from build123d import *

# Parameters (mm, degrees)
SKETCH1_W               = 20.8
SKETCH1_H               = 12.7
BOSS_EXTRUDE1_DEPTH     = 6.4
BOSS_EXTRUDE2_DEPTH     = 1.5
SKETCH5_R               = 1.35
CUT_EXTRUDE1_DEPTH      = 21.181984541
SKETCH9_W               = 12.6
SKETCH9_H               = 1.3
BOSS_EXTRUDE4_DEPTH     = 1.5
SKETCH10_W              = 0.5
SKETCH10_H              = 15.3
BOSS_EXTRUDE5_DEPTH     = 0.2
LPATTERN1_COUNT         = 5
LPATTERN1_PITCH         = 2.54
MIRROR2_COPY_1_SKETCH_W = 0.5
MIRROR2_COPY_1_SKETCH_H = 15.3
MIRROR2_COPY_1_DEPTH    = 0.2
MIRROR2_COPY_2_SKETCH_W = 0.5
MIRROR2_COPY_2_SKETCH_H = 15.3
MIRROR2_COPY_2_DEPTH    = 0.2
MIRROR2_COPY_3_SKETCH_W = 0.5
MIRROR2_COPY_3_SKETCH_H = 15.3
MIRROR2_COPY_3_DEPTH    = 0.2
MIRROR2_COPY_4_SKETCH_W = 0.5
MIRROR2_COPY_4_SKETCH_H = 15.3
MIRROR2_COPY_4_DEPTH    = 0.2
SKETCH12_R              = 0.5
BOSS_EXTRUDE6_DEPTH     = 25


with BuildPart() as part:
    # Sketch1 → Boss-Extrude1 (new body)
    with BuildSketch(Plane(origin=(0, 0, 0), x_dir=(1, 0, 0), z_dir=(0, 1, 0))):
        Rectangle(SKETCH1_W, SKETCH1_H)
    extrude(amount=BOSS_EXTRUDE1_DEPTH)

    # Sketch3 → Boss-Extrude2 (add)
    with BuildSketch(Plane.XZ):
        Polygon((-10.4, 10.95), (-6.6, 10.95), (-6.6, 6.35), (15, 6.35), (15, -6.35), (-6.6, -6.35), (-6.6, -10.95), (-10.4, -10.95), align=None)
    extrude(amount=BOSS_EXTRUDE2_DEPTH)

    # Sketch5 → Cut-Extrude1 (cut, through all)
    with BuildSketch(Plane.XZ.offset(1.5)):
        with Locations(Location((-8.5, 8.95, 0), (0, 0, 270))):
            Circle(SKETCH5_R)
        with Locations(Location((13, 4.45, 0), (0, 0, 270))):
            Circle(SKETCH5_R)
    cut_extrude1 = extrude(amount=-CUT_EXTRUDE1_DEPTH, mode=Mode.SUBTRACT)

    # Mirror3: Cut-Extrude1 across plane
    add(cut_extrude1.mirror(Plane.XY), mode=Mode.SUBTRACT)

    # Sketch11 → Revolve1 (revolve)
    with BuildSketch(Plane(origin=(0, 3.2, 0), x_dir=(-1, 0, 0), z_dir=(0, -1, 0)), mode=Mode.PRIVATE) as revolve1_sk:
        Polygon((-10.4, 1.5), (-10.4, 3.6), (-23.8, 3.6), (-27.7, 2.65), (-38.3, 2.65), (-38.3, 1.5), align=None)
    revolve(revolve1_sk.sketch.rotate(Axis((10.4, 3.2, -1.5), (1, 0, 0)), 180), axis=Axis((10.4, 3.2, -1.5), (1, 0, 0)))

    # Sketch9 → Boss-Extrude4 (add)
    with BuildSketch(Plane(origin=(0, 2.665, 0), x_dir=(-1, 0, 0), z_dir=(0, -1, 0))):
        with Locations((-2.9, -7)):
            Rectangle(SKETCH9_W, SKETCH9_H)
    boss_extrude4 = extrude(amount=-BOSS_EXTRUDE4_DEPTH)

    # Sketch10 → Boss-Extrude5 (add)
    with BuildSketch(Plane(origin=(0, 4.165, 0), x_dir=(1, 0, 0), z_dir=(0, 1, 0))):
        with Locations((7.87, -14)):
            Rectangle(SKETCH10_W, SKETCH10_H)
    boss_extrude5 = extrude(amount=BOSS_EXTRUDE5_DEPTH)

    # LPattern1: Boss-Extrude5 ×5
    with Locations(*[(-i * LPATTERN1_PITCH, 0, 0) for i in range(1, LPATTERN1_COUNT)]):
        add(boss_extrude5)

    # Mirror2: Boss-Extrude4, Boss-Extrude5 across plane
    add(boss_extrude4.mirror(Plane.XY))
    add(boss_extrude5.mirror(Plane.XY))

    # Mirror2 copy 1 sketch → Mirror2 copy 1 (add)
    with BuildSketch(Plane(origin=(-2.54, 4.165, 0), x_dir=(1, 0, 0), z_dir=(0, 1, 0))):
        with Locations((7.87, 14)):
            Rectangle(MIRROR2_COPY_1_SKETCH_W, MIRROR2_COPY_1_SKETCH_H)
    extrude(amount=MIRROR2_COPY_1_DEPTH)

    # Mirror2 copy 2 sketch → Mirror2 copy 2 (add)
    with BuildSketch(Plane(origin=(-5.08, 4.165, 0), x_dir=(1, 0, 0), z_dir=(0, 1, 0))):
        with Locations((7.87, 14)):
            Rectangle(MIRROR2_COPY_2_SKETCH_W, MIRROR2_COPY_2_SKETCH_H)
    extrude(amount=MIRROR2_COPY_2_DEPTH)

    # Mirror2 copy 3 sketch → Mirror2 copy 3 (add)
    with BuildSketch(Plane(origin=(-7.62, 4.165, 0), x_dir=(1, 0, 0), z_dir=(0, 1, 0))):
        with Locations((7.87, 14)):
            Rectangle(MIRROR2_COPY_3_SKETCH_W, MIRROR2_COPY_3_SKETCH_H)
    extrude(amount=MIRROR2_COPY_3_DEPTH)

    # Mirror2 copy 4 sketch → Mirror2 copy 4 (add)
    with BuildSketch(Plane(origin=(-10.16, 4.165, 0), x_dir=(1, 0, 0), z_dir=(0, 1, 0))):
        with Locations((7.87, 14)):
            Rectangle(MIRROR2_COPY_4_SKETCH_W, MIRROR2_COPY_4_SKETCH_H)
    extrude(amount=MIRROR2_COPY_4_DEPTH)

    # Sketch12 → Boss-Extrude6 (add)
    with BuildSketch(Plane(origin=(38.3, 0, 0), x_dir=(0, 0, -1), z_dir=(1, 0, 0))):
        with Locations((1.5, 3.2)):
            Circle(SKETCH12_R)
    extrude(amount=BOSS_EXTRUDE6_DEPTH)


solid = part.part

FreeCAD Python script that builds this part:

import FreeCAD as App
import Part
import Sketcher

V = App.Vector
Q = App.Units.Quantity


def add_polygon(sketch, points):
    """Adds a closed chain of lines whose ends are joined by coincident constraints."""
    first, n = sketch.GeometryCount, len(points)
    for a, b in zip(points, points[1:] + points[:1]):
        sketch.addGeometry(Part.LineSegment(App.Vector(*a, 0), App.Vector(*b, 0)), False)
    for i in range(n):
        sketch.addConstraint(Sketcher.Constraint("Coincident", first + i, 2, first + (i + 1) % n, 1))

doc = App.newDocument("Part")
body = doc.addObject("PartDesign::Body", "Body")

sketch1 = body.newObject("Sketcher::SketchObject", "Sketch")
sketch1.AttachmentSupport = (doc.getObject("XZ_Plane"), [""])
sketch1.MapMode = "FlatFace"
add_polygon(sketch1, [(-10, -6), (-10, 6), (10, 6), (10, -6)])
sketch1.addConstraint([
    Sketcher.Constraint("Vertical", 0),
    Sketcher.Constraint("Horizontal", 1),
    Sketcher.Constraint("Vertical", 2),
    Sketcher.Constraint("Horizontal", 3),
    Sketcher.Constraint("Symmetric", 0, 2, 2, 2, -1, 1),
    Sketcher.Constraint("DistanceX", 1, 1, 1, 2, Q("20.8 mm")),
    Sketcher.Constraint("DistanceY", 0, 1, 0, 2, Q("12.7 mm")),
])
pad1 = body.newObject("PartDesign::Pad", "Pad")
pad1.Profile = sketch1
pad1.Length = 6.4
pad1.Reversed = True

sketch2 = body.newObject("Sketcher::SketchObject", "Sketch001")
sketch2.AttachmentSupport = (doc.getObject("XZ_Plane"), [""])
sketch2.MapMode = "FlatFace"
add_polygon(sketch2, [(-6.6, 10.9), (-10.4, 10.9), (-10.4, -10.9), (-6.6, -10.9), (-6.6, -6.3), (15, -6.3), (15, 6.3), (-6.6, 6.3)])
sketch2.addConstraint([
    Sketcher.Constraint("Horizontal", 0),
    Sketcher.Constraint("Vertical", 1),
    Sketcher.Constraint("Horizontal", 2),
    Sketcher.Constraint("Vertical", 3),
    Sketcher.Constraint("Horizontal", 4),
    Sketcher.Constraint("Vertical", 5),
    Sketcher.Constraint("Horizontal", 6),
    Sketcher.Constraint("Vertical", 7),
    Sketcher.Constraint("Symmetric", 3, 2, 6, 2, -1),
    Sketcher.Constraint("Equal", 3, 7),
    Sketcher.Constraint("DistanceX", 0, 2, 0, 1, Q("3.8 mm")),
    Sketcher.Constraint("DistanceX", 4, 1, 4, 2, Q("21.6 mm")),
    Sketcher.Constraint("DistanceY", 1, 2, 1, 1, Q("21.9 mm")),
    Sketcher.Constraint("DistanceY", 3, 1, 3, 2, Q("4.6 mm")),
    Sketcher.Constraint("DistanceX", -1, 1, 4, 2, Q("15 mm")),
])
pad2 = body.newObject("PartDesign::Pad", "Pad001")
pad2.Profile = sketch2
pad2.Length = 1.5

sketch3 = body.newObject("Sketcher::SketchObject", "Sketch002")
sketch3.AttachmentSupport = (doc.getObject("XZ_Plane"), [""])
sketch3.MapMode = "FlatFace"
sketch3.AttachmentOffset = App.Placement(V(0, 0, 1.5), App.Rotation())
sketch3.addGeometry([
    Part.Circle(V(-8.5, 8.9, 0), V(0, 0, 1), 1.4),
    Part.Circle(V(13, 4.5, 0), V(0, 0, 1), 1.4),
], False)
sketch3.addConstraint([
    Sketcher.Constraint("Equal", 0, 1),
    Sketcher.Constraint("Diameter", 0, Q("2.7 mm")),
    Sketcher.Constraint("DistanceX", -1, 1, 1, 3, Q("13 mm")),
    Sketcher.Constraint("DistanceX", 0, 3, -1, 1, Q("8.5 mm")),
    Sketcher.Constraint("DistanceY", 1, 3, 0, 3, Q("4.5 mm")),
    Sketcher.Constraint("DistanceY", -1, 1, 0, 3, Q("8.95 mm")),
])
pocket1 = body.newObject("PartDesign::Pocket", "Pocket")
pocket1.Profile = sketch3
pocket1.Type = "ThroughAll"
doc.recompute()

mirrored = body.newObject("PartDesign::Mirrored", "Mirrored")
mirrored.Originals = [pocket1]
mirrored.MirrorPlane = (doc.getObject("XY_Plane"), [""])
body.Tip = mirrored

sketch4 = body.newObject("Sketcher::SketchObject", "Sketch003")
sketch4.AttachmentSupport = (doc.getObject("XZ_Plane"), [""])
sketch4.MapMode = "FlatFace"
sketch4.AttachmentOffset = App.Placement(V(0, 0, -3.2), App.Rotation())
add_polygon(sketch4, [(10.4, -1.5), (10.4, -3.6), (23.8, -3.6), (27.7, -2.6), (38.3, -2.6), (38.3, -1.5)])
sketch4.addGeometry(Part.LineSegment(V(10.4, -1.5, 0), V(38.3, -1.5, 0)), True)
sketch4.addConstraint([
    Sketcher.Constraint("Vertical", 0),
    Sketcher.Constraint("Horizontal", 1),
    Sketcher.Constraint("Horizontal", 3),
    Sketcher.Constraint("Vertical", 4),
    Sketcher.Constraint("Horizontal", 5),
    Sketcher.Constraint("Horizontal", 6),
    Sketcher.Constraint("Coincident", 6, 1, 5, 2),
    Sketcher.Constraint("Vertical", 3, 2, 6, 2),
    Sketcher.Constraint("DistanceX", 1, 1, 1, 2, Q("13.4 mm")),
    Sketcher.Constraint("DistanceX", 3, 1, 3, 2, Q("10.6 mm")),
    Sketcher.Constraint("DistanceX", 5, 2, 5, 1, Q("27.9 mm")),
    Sketcher.Constraint("DistanceY", 0, 2, 0, 1, Q("2.1 mm")),
    Sketcher.Constraint("DistanceY", 4, 1, 4, 2, Q("1.15 mm")),
    Sketcher.Constraint("DistanceX", -1, 1, 0, 2, Q("10.4 mm")),
    Sketcher.Constraint("DistanceY", 0, 2, -1, 1, Q("3.6 mm")),
])
revolution = body.newObject("PartDesign::Revolution", "Revolution")
revolution.Profile = sketch4
revolution.ReferenceAxis = (sketch4, ["Axis0"])
revolution.Angle = 360

sketch5 = body.newObject("Sketcher::SketchObject", "Sketch004")
sketch5.AttachmentSupport = (doc.getObject("XZ_Plane"), [""])
sketch5.MapMode = "FlatFace"
sketch5.AttachmentOffset = App.Placement(V(0, 0, -2.665), App.Rotation())
add_polygon(sketch5, [(9.2, 6.3), (9.2, 7.7), (-3.4, 7.7), (-3.4, 6.3)])
sketch5.addConstraint([
    Sketcher.Constraint("Vertical", 0),
    Sketcher.Constraint("Horizontal", 1),
    Sketcher.Constraint("Vertical", 2),
    Sketcher.Constraint("Horizontal", 3),
    Sketcher.Constraint("DistanceX", 1, 2, 1, 1, Q("12.6 mm")),
    Sketcher.Constraint("DistanceY", 0, 1, 0, 2, Q("1.3 mm")),
    Sketcher.Constraint("DistanceX", -1, 1, 0, 2, Q("9.2 mm")),
    Sketcher.Constraint("DistanceY", -1, 1, 0, 2, Q("7.65 mm")),
])
pad3 = body.newObject("PartDesign::Pad", "Pad002")
pad3.Profile = sketch5
pad3.Length = 1.5
pad3.Reversed = True

sketch6 = body.newObject("Sketcher::SketchObject", "Sketch005")
sketch6.AttachmentSupport = (doc.getObject("XZ_Plane"), [""])
sketch6.MapMode = "FlatFace"
sketch6.AttachmentOffset = App.Placement(V(0, 0, -4.165), App.Rotation())
add_polygon(sketch6, [(7.62, 6.35), (7.62, 21.65), (8.12, 21.65), (8.12, 6.35)])
sketch6.addConstraint([
    Sketcher.Constraint("Vertical", 0),
    Sketcher.Constraint("Horizontal", 1),
    Sketcher.Constraint("Vertical", 2),
    Sketcher.Constraint("Horizontal", 3),
    Sketcher.Constraint("DistanceX", 1, 1, 1, 2, Q("0.5 mm")),
    Sketcher.Constraint("DistanceY", 0, 1, 0, 2, Q("15.3 mm")),
    Sketcher.Constraint("DistanceX", -1, 1, 0, 2, Q("7.62 mm")),
    Sketcher.Constraint("DistanceY", -1, 1, 0, 2, Q("21.65 mm")),
])
pad4 = body.newObject("PartDesign::Pad", "Pad003")
pad4.Profile = sketch6
pad4.Length = 0.2
pad4.Reversed = True
doc.recompute()

linearpattern = body.newObject("PartDesign::LinearPattern", "LinearPattern")
linearpattern.Originals = [pad4]
linearpattern.Direction = (doc.getObject("X_Axis"), [""])
linearpattern.Mode = "offset"
linearpattern.Offset = 2.54
linearpattern.Occurrences = 5
linearpattern.Reversed = True
body.Tip = linearpattern
doc.recompute()

mirrored2 = body.newObject("PartDesign::Mirrored", "Mirrored001")
mirrored2.Originals = [pad3, pad4]
mirrored2.MirrorPlane = (doc.getObject("XY_Plane"), [""])
body.Tip = mirrored2

sketch7 = body.newObject("Sketcher::SketchObject", "Sketch006")
sketch7.AttachmentSupport = (doc.getObject("XZ_Plane"), [""])
sketch7.MapMode = "FlatFace"
sketch7.AttachmentOffset = App.Placement(V(0, 0, -4.165), App.Rotation())
add_polygon(sketch7, [(5.1, -21.6), (5.1, -6.3), (5.6, -6.3), (5.6, -21.6)])
sketch7.addConstraint([
    Sketcher.Constraint("Vertical", 0),
    Sketcher.Constraint("Horizontal", 1),
    Sketcher.Constraint("Vertical", 2),
    Sketcher.Constraint("Horizontal", 3),
    Sketcher.Constraint("DistanceX", 1, 1, 1, 2, Q("0.5 mm")),
    Sketcher.Constraint("DistanceY", 0, 1, 0, 2, Q("15.3 mm")),
    Sketcher.Constraint("DistanceX", -1, 1, 0, 2, Q("5.08 mm")),
    Sketcher.Constraint("DistanceY", 0, 2, -1, 1, Q("6.35 mm")),
])
pad5 = body.newObject("PartDesign::Pad", "Pad004")
pad5.Profile = sketch7
pad5.Length = 0.2
pad5.Reversed = True

sketch8 = body.newObject("Sketcher::SketchObject", "Sketch007")
sketch8.AttachmentSupport = (doc.getObject("XZ_Plane"), [""])
sketch8.MapMode = "FlatFace"
sketch8.AttachmentOffset = App.Placement(V(0, 0, -4.165), App.Rotation())
add_polygon(sketch8, [(2.5, -21.6), (2.5, -6.3), (3, -6.3), (3, -21.6)])
sketch8.addConstraint([
    Sketcher.Constraint("Vertical", 0),
    Sketcher.Constraint("Horizontal", 1),
    Sketcher.Constraint("Vertical", 2),
    Sketcher.Constraint("Horizontal", 3),
    Sketcher.Constraint("DistanceX", 1, 1, 1, 2, Q("0.5 mm")),
    Sketcher.Constraint("DistanceY", 0, 1, 0, 2, Q("15.3 mm")),
    Sketcher.Constraint("DistanceX", -1, 1, 0, 2, Q("2.54 mm")),
    Sketcher.Constraint("DistanceY", 0, 2, -1, 1, Q("6.35 mm")),
])
pad6 = body.newObject("PartDesign::Pad", "Pad005")
pad6.Profile = sketch8
pad6.Length = 0.2
pad6.Reversed = True

sketch9 = body.newObject("Sketcher::SketchObject", "Sketch008")
sketch9.AttachmentSupport = (doc.getObject("XZ_Plane"), [""])
sketch9.MapMode = "FlatFace"
sketch9.AttachmentOffset = App.Placement(V(0, 0, -4.165), App.Rotation())
add_polygon(sketch9, [(0, -21.6), (0, -6.3), (0.5, -6.3), (0.5, -21.6)])
sketch9.addConstraint([
    Sketcher.Constraint("Vertical", 0),
    Sketcher.Constraint("Horizontal", 1),
    Sketcher.Constraint("Vertical", 2),
    Sketcher.Constraint("Horizontal", 3),
    Sketcher.Constraint("PointOnObject", 0, 2, -2),
    Sketcher.Constraint("DistanceX", 1, 1, 1, 2, Q("0.5 mm")),
    Sketcher.Constraint("DistanceY", 0, 1, 0, 2, Q("15.3 mm")),
    Sketcher.Constraint("DistanceY", 0, 2, -1, 1, Q("6.35 mm")),
])
pad7 = body.newObject("PartDesign::Pad", "Pad006")
pad7.Profile = sketch9
pad7.Length = 0.2
pad7.Reversed = True

sketch10 = body.newObject("Sketcher::SketchObject", "Sketch009")
sketch10.AttachmentSupport = (doc.getObject("XZ_Plane"), [""])
sketch10.MapMode = "FlatFace"
sketch10.AttachmentOffset = App.Placement(V(0, 0, -4.165), App.Rotation())
add_polygon(sketch10, [(-2.5, -21.6), (-2.5, -6.3), (-2, -6.3), (-2, -21.6)])
sketch10.addConstraint([
    Sketcher.Constraint("Vertical", 0),
    Sketcher.Constraint("Horizontal", 1),
    Sketcher.Constraint("Vertical", 2),
    Sketcher.Constraint("Horizontal", 3),
    Sketcher.Constraint("DistanceX", 1, 1, 1, 2, Q("0.5 mm")),
    Sketcher.Constraint("DistanceY", 0, 1, 0, 2, Q("15.3 mm")),
    Sketcher.Constraint("DistanceX", 0, 2, -1, 1, Q("2.54 mm")),
    Sketcher.Constraint("DistanceY", 0, 2, -1, 1, Q("6.35 mm")),
])
pad8 = body.newObject("PartDesign::Pad", "Pad007")
pad8.Profile = sketch10
pad8.Length = 0.2
pad8.Reversed = True

sketch11 = body.newObject("Sketcher::SketchObject", "Sketch010")
sketch11.AttachmentSupport = (doc.getObject("YZ_Plane"), [""])
sketch11.MapMode = "FlatFace"
sketch11.AttachmentOffset = App.Placement(V(0, 0, 38.3), App.Rotation())
sketch11.addGeometry(Part.Circle(V(3.2, -1.5, 0), V(0, 0, 1), 0.5), False)
sketch11.addConstraint([
    Sketcher.Constraint("Diameter", 0, Q("1 mm")),
    Sketcher.Constraint("DistanceX", -1, 1, 0, 3, Q("3.2 mm")),
    Sketcher.Constraint("DistanceY", 0, 3, -1, 1, Q("1.5 mm")),
])
pad9 = body.newObject("PartDesign::Pad", "Pad008")
pad9.Profile = sketch11
pad9.Length = 25

doc.recompute()
